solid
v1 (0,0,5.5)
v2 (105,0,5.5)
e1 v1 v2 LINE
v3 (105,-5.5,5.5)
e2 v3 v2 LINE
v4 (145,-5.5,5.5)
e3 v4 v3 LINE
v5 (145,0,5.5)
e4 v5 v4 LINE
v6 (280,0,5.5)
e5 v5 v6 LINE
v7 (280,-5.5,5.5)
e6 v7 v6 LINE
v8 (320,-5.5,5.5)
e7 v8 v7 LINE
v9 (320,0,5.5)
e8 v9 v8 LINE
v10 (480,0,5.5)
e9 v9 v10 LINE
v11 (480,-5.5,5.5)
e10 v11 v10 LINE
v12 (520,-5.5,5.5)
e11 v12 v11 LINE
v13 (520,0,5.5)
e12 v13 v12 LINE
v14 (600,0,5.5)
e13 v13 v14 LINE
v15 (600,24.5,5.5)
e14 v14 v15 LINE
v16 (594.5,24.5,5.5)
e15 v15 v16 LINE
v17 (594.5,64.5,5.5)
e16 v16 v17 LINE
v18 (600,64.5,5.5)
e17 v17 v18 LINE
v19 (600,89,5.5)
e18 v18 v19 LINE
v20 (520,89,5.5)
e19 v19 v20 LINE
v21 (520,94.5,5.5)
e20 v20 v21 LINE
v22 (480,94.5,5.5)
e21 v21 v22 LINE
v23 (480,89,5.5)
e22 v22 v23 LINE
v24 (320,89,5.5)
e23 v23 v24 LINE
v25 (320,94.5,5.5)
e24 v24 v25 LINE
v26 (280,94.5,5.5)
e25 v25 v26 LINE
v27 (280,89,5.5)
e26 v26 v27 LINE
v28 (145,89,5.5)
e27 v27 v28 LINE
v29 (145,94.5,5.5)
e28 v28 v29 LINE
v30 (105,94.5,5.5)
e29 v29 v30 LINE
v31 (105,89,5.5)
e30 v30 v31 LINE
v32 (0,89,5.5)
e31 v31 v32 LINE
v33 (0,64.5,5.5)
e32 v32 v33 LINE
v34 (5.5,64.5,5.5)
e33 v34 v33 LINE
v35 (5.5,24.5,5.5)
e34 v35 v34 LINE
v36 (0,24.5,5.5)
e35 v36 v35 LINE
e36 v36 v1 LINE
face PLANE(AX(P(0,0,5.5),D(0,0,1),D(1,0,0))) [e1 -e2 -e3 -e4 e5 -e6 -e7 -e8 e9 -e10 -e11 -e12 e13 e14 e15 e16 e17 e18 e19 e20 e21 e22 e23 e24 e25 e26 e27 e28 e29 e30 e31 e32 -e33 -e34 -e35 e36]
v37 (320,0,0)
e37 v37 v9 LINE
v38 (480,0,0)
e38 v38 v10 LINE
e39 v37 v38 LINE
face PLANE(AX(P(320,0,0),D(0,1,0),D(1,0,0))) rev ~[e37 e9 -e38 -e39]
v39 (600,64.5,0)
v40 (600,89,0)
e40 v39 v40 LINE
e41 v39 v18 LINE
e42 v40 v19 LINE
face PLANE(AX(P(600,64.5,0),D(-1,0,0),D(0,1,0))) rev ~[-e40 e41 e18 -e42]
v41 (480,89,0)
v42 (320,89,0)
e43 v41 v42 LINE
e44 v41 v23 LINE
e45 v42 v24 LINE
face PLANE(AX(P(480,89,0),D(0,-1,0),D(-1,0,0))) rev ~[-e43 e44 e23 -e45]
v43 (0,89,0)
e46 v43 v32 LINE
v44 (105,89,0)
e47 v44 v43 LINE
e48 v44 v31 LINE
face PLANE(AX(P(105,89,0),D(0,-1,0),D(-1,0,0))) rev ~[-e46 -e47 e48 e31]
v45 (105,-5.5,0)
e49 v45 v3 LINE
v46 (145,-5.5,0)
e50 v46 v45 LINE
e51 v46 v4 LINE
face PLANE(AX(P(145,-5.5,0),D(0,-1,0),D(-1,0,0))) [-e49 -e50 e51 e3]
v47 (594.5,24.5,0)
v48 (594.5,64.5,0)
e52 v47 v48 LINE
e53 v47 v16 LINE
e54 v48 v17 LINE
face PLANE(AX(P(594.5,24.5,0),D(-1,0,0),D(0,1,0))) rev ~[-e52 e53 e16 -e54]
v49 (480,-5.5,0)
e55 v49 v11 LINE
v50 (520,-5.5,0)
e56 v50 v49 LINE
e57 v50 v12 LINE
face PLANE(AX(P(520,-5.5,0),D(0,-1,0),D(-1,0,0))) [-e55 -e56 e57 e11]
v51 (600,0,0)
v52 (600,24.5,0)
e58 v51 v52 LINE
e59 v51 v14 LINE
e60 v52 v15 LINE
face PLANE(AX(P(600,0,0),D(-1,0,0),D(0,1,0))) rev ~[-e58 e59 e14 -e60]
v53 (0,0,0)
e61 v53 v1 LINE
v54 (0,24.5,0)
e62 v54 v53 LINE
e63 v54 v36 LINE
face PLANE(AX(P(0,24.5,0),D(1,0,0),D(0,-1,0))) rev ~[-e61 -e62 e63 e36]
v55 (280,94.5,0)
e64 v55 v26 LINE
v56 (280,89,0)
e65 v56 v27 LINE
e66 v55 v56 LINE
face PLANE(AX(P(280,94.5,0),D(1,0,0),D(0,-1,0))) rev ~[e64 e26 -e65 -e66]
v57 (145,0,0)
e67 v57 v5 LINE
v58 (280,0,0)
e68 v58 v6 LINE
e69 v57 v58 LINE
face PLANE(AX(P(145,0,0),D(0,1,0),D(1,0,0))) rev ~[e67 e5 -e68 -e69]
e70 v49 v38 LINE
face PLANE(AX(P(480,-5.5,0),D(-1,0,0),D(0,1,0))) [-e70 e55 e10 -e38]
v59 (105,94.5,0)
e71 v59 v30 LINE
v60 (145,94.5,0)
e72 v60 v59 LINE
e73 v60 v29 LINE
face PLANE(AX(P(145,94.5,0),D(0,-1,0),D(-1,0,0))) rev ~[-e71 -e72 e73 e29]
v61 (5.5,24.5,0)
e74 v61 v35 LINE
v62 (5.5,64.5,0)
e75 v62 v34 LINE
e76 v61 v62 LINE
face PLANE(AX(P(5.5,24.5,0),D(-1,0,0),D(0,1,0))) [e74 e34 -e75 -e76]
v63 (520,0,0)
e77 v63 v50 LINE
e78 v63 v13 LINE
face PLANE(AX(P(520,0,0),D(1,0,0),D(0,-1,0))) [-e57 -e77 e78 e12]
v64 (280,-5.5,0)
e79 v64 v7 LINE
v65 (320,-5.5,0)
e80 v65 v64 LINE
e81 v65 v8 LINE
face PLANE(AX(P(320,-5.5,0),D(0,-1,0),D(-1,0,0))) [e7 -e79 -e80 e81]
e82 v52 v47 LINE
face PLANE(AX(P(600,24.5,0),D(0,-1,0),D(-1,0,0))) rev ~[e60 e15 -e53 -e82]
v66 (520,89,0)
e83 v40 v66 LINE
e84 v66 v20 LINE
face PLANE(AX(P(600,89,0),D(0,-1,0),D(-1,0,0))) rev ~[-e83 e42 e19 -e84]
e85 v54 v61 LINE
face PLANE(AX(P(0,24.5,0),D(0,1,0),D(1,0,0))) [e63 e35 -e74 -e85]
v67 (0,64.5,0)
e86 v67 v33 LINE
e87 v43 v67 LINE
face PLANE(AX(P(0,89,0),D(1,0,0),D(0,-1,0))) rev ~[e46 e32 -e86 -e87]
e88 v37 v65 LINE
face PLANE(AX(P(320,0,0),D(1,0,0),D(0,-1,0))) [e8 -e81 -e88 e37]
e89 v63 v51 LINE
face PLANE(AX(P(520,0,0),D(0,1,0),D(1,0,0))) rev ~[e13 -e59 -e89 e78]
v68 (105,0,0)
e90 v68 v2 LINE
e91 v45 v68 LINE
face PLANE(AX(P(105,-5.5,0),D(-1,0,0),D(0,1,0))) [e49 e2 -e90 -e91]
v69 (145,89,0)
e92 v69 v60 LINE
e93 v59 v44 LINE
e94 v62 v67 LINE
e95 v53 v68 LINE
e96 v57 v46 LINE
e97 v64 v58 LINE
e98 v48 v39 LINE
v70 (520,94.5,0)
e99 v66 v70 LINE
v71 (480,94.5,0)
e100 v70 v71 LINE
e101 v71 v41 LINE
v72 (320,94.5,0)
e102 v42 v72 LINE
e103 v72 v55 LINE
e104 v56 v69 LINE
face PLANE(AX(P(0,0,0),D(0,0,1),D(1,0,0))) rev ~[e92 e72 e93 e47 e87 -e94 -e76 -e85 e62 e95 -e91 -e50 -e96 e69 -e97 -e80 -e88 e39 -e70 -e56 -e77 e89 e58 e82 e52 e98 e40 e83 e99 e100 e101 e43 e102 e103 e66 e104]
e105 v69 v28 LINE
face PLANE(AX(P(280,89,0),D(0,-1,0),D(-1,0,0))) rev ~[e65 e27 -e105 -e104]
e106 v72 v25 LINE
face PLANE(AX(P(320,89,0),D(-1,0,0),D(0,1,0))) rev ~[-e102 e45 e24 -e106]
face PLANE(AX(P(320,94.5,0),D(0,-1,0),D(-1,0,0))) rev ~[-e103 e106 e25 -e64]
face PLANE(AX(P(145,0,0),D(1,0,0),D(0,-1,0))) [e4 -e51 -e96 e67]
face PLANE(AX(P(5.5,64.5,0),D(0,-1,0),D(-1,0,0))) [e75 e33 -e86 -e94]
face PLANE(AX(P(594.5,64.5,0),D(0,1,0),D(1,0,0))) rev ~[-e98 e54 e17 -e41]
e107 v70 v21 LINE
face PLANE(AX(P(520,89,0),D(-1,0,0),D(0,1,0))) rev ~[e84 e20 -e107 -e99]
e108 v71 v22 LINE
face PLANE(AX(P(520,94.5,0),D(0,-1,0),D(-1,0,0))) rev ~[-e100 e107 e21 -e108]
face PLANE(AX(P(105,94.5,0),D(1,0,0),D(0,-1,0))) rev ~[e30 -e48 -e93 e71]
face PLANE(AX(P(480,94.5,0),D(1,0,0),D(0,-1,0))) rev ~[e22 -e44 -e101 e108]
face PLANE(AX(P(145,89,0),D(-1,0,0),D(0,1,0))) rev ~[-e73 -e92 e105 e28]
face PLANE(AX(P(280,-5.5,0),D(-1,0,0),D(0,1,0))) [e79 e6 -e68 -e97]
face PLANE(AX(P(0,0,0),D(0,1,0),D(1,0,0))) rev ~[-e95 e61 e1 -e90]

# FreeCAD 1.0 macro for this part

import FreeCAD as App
import Part
import Sketcher


def add_polygon(sketch, points):
    """Adds a closed chain of lines whose ends are joined by coincident constraints."""
    first, n = sketch.GeometryCount, len(points)
    for a, b in zip(points, points[1:] + points[:1]):
        sketch.addGeometry(Part.LineSegment(App.Vector(*a, 0), App.Vector(*b, 0)), False)
    for i in range(n):
        sketch.addConstraint(Sketcher.Constraint("Coincident", first + i, 2, first + (i + 1) % n, 1))

doc = App.newDocument("Part")
body = doc.addObject("PartDesign::Body", "Body")

# Sketch on XY plane
sketch1 = body.newObject("Sketcher::SketchObject", "Sketch")
sketch1.AttachmentSupport = (doc.getObject("XY_Plane"), [""])
sketch1.MapMode = "FlatFace"
add_polygon(sketch1, [(0, 24), (0, 0), (105, 0), (105, -6), (145, -6), (145, 0), (280, 0), (280, -6), (320, -6), (320, 0), (480, 0), (480, -6), (520, -6), (520, 0), (600, 0), (600, 24), (594, 24), (594, 64), (600, 64), (600, 89), (520, 89), (520, 94), (480, 94), (480, 89), (320, 89), (320, 94), (280, 94), (280, 89), (145, 89), (145, 94), (105, 94), (105, 89), (0, 89), (0, 64), (6, 64), (6, 24)])  # lines 0-35
sketch1.addConstraint([
    Sketcher.Constraint("Vertical", 0),
    Sketcher.Constraint("Horizontal", 1),
    Sketcher.Constraint("Vertical", 2),
    Sketcher.Constraint("Horizontal", 3),
    Sketcher.Constraint("Vertical", 4),
    Sketcher.Constraint("Horizontal", 5),
    Sketcher.Constraint("Vertical", 6),
    Sketcher.Constraint("Horizontal", 7),
    Sketcher.Constraint("Vertical", 8),
    Sketcher.Constraint("Horizontal", 9),
    Sketcher.Constraint("Vertical", 10),
    Sketcher.Constraint("Horizontal", 11),
    Sketcher.Constraint("Vertical", 12),
    Sketcher.Constraint("Horizontal", 13),
    Sketcher.Constraint("Vertical", 14),
    Sketcher.Constraint("Horizontal", 15),
    Sketcher.Constraint("Vertical", 16),
    Sketcher.Constraint("Horizontal", 17),
    Sketcher.Constraint("Vertical", 18),
    Sketcher.Constraint("Horizontal", 19),
    Sketcher.Constraint("Vertical", 20),
    Sketcher.Constraint("Horizontal", 21),
    Sketcher.Constraint("Vertical", 22),
    Sketcher.Constraint("Horizontal", 23),
    Sketcher.Constraint("Vertical", 24),
    Sketcher.Constraint("Horizontal", 25),
    Sketcher.Constraint("Vertical", 26),
    Sketcher.Constraint("Horizontal", 27),
    Sketcher.Constraint("Vertical", 28),
    Sketcher.Constraint("Horizontal", 29),
    Sketcher.Constraint("Vertical", 30),
    Sketcher.Constraint("Horizontal", 31),
    Sketcher.Constraint("Vertical", 32),
    Sketcher.Constraint("Horizontal", 33),
    Sketcher.Constraint("Vertical", 34),
    Sketcher.Constraint("Horizontal", 35),
    Sketcher.Constraint("Coincident", 0, 2, -1, 1),
    Sketcher.Constraint("PointOnObject", 4, 2, -1),
    Sketcher.Constraint("PointOnObject", 8, 2, -1),
    Sketcher.Constraint("PointOnObject", 12, 2, -1),
    Sketcher.Constraint("PointOnObject", 31, 2, -2),
    Sketcher.Constraint("Horizontal", 3, 2, 6, 2),
    Sketcher.Constraint("Horizontal", 7, 2, 10, 2),
    Sketcher.Constraint("Horizontal", 19, 2, 22, 2),
    Sketcher.Constraint("Horizontal", 21, 2, 24, 2),
    Sketcher.Constraint("Horizontal", 23, 2, 26, 2),
    Sketcher.Constraint("Horizontal", 25, 2, 28, 2),
    Sketcher.Constraint("Horizontal", 27, 2, 30, 2),
    Sketcher.Constraint("Horizontal", 17, 2, 32, 2),
    Sketcher.Constraint("Horizontal", 15, 2, 34, 2),
    Sketcher.Constraint("Vertical", 14, 2, 17, 2),
    Sketcher.Constraint("Vertical", 12, 2, 19, 2),
    Sketcher.Constraint("Vertical", 10, 2, 21, 2),
    Sketcher.Constraint("Vertical", 8, 2, 23, 2),
    Sketcher.Constraint("Vertical", 6, 2, 25, 2),
    Sketcher.Constraint("Vertical", 4, 2, 27, 2),
    Sketcher.Constraint("Vertical", 2, 2, 29, 2),
    Sketcher.Constraint("Equal", 3, 7),
    Sketcher.Constraint("Equal", 7, 11),
    Sketcher.Constraint("Equal", 17, 33),
    Sketcher.Constraint("Equal", 35, 2),
    Sketcher.Constraint("Equal", 29, 16),
    Sketcher.Constraint("Equal", 14, 18),
    Sketcher.Constraint("Equal", 12, 20),
    Sketcher.Constraint("DistanceX", 3, 1, 3, 2, 40.0),
    Sketcher.Constraint("DistanceX", 15, 2, 15, 1, 5.5),
    Sketcher.Constraint("DistanceX", -1, 1, 13, 2, 600.0),
    Sketcher.Constraint("DistanceY", -1, 1, 18, 2, 89.0),
    Sketcher.Constraint("DistanceX", 1, 1, 1, 2, 105.0),
    Sketcher.Constraint("DistanceX", 5, 1, 5, 2, 135.0),
    Sketcher.Constraint("DistanceX", 9, 1, 9, 2, 160.0),
])
pad1 = body.newObject("PartDesign::Pad", "Pad")
pad1.Profile = sketch1
pad1.Length = 5.5

doc.recompute()
